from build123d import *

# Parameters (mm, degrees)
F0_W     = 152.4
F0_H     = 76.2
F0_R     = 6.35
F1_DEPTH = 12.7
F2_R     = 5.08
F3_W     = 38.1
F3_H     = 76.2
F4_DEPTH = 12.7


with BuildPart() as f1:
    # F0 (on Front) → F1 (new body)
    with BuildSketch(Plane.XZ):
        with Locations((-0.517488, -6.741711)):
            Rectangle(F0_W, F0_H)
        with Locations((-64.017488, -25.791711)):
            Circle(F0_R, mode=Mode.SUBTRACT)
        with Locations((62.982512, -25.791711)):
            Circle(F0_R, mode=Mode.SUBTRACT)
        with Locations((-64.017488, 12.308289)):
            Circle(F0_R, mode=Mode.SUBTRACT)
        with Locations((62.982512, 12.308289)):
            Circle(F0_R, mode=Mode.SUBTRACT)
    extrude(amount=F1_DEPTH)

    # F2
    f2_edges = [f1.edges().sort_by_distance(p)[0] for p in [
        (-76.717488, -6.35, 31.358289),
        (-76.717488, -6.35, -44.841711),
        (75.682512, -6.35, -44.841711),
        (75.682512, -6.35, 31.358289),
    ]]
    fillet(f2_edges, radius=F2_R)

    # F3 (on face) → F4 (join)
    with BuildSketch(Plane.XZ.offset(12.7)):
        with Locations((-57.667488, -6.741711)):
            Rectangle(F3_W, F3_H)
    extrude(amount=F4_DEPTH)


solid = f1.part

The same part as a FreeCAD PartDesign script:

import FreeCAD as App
import Part
import Sketcher

V = App.Vector
Q = App.Units.Quantity


def edges_at(feature, points):
    """Names of the edges that pass closest to the given points."""
    edges = feature.Shape.Edges
    near = lambda p: min(range(len(edges)), key=lambda i: edges[i].distToShape(Part.Vertex(*p))[0])
    return sorted({f"Edge{near(p) + 1}" for p in points})


def add_polygon(sketch, points):
    """Adds a closed chain of lines whose ends are joined by coincident constraints."""
    first, n = sketch.GeometryCount, len(points)
    for a, b in zip(points, points[1:] + points[:1]):
        sketch.addGeometry(Part.LineSegment(App.Vector(*a, 0), App.Vector(*b, 0)), False)
    for i in range(n):
        sketch.addConstraint(Sketcher.Constraint("Coincident", first + i, 2, first + (i + 1) % n, 1))

doc = App.newDocument("Part")
params = doc.addObject("Spreadsheet::Sheet", "Params")
for row, (alias, value) in enumerate([
    ("sketch1_diameter", "0.5 in"),
    ("sketch1_width", "6 in"),
    ("sketch1_height", "3 in"),
    ("pad1_length", "0.5 in"),
    ("fillet_radius", "0.2 in"),
    ("sketch2_height", "3 in"),
    ("sketch2_width", "1.5 in"),
    ("pad2_length", "0.5 in"),
], start=1):
    params.set(f"A{row}", alias)
    params.set(f"B{row}", "=" + value)
    params.setAlias(f"B{row}", alias)

body = doc.addObject("PartDesign::Body", "Body")

# Sketch on XZ plane
sketch1 = doc.addObject("Sketcher::SketchObject", "Sketch")
body.addObject(sketch1)
sketch1.AttachmentSupport = (doc.XZ_Plane, [""])
sketch1.MapMode = "FlatFace"
add_polygon(sketch1, [(-76.717488, 31.358289), (-76.717488, -44.841711), (75.682512, -44.841711), (75.682512, 31.358289)])  # lines 0-3
sketch1.addGeometry(Part.Circle(V(-64.017488, -25.791711, 0), V(0, 0, 1), 6.35), False)  # 4
sketch1.addGeometry(Part.Circle(V(62.982512, -25.791711, 0), V(0, 0, 1), 6.35), False)  # 5
sketch1.addGeometry(Part.Circle(V(-64.017488, 12.308289, 0), V(0, 0, 1), 6.35), False)  # 6
sketch1.addGeometry(Part.Circle(V(62.982512, 12.308289, 0), V(0, 0, 1), 6.35), False)  # 7
sketch1.addConstraint([
    Sketcher.Constraint("Vertical", 0),
    Sketcher.Constraint("Horizontal", 1),
    Sketcher.Constraint("Vertical", 2),
    Sketcher.Constraint("Horizontal", 3),
    Sketcher.Constraint("Equal", 4, 5),
    Sketcher.Constraint("Equal", 5, 6),
    Sketcher.Constraint("Equal", 6, 7),
    Sketcher.Constraint("Horizontal", 4, 3, 5, 3),
    Sketcher.Constraint("Horizontal", 6, 3, 7, 3),
    Sketcher.Constraint("Vertical", 4, 3, 6, 3),
    Sketcher.Constraint("Vertical", 5, 3, 7, 3),
    Sketcher.Constraint("Diameter", 4, Q("0.5 in")),
    Sketcher.Constraint("DistanceX", 1, 1, 1, 2, Q("6 in")),
    Sketcher.Constraint("DistanceY", 0, 2, 0, 1, Q("3 in")),
    Sketcher.Constraint("DistanceX", 4, 3, 5, 3, Q("5 in")),
    Sketcher.Constraint("DistanceY", 4, 3, 6, 3, Q("1.5 in")),
    Sketcher.Constraint("DistanceX", 0, 2, 4, 3, Q("0.5 in")),
    Sketcher.Constraint("DistanceY", 0, 2, 4, 3, Q("0.75 in")),
    Sketcher.Constraint("DistanceX", 4, 3, -1, 1, Q("64.017488 mm")),
    Sketcher.Constraint("DistanceY", 4, 3, -1, 1, Q("25.791711 mm")),
])
sketch1.setExpression("Constraints[15]", "Params.sketch1_diameter")
sketch1.setExpression("Constraints[16]", "Params.sketch1_width")
sketch1.setExpression("Constraints[17]", "Params.sketch1_height")
pad1 = doc.addObject("PartDesign::Pad", "Pad")
body.addObject(pad1)
pad1.Profile = sketch1
pad1.setExpression("Length", "Params.pad1_length")
doc.recompute()

fillet = doc.addObject("PartDesign::Fillet", "Fillet")
body.addObject(fillet)
fillet.Base = (pad1, edges_at(pad1, [
    (-76.717, -6.35, 31.358),
    (-76.717, -6.35, -44.842),
    (75.683, -6.35, -44.842),
    (75.683, -6.35, 31.358),
]))
fillet.setExpression("Radius", "Params.fillet_radius")

# Sketch on XZ plane
sketch2 = doc.addObject("Sketcher::SketchObject", "Sketch001")
body.addObject(sketch2)
sketch2.AttachmentSupport = (doc.XZ_Plane, [""])
sketch2.MapMode = "FlatFace"
sketch2.AttachmentOffset = App.Placement(V(0, 0, 0.5 * 25.4), App.Rotation())
add_polygon(sketch2, [(-76.717488, 31.358289), (-76.717488, -44.841711), (-38.617488, -44.841711), (-38.617488, 31.358289)])  # lines 0-3
sketch2.addConstraint([
    Sketcher.Constraint("Vertical", 0),
    Sketcher.Constraint("Horizontal", 1),
    Sketcher.Constraint("Vertical", 2),
    Sketcher.Constraint("Horizontal", 3),
    Sketcher.Constraint("DistanceY", 0, 2, 0, 1, Q("3 in")),
    Sketcher.Constraint("DistanceX", 1, 1, 1, 2, Q("1.5 in")),
    Sketcher.Constraint("DistanceX", 0, 2, -1, 1, Q("76.717488 mm")),
    Sketcher.Constraint("DistanceY", 0, 2, -1, 1, Q("44.841711 mm")),
])
sketch2.setExpression("Constraints[8]", "Params.sketch2_height")
sketch2.setExpression("Constraints[9]", "Params.sketch2_width")
pad2 = doc.addObject("PartDesign::Pad", "Pad001")
body.addObject(pad2)
pad2.Profile = sketch2
pad2.setExpression("Length", "Params.pad2_length")

doc.recompute()
